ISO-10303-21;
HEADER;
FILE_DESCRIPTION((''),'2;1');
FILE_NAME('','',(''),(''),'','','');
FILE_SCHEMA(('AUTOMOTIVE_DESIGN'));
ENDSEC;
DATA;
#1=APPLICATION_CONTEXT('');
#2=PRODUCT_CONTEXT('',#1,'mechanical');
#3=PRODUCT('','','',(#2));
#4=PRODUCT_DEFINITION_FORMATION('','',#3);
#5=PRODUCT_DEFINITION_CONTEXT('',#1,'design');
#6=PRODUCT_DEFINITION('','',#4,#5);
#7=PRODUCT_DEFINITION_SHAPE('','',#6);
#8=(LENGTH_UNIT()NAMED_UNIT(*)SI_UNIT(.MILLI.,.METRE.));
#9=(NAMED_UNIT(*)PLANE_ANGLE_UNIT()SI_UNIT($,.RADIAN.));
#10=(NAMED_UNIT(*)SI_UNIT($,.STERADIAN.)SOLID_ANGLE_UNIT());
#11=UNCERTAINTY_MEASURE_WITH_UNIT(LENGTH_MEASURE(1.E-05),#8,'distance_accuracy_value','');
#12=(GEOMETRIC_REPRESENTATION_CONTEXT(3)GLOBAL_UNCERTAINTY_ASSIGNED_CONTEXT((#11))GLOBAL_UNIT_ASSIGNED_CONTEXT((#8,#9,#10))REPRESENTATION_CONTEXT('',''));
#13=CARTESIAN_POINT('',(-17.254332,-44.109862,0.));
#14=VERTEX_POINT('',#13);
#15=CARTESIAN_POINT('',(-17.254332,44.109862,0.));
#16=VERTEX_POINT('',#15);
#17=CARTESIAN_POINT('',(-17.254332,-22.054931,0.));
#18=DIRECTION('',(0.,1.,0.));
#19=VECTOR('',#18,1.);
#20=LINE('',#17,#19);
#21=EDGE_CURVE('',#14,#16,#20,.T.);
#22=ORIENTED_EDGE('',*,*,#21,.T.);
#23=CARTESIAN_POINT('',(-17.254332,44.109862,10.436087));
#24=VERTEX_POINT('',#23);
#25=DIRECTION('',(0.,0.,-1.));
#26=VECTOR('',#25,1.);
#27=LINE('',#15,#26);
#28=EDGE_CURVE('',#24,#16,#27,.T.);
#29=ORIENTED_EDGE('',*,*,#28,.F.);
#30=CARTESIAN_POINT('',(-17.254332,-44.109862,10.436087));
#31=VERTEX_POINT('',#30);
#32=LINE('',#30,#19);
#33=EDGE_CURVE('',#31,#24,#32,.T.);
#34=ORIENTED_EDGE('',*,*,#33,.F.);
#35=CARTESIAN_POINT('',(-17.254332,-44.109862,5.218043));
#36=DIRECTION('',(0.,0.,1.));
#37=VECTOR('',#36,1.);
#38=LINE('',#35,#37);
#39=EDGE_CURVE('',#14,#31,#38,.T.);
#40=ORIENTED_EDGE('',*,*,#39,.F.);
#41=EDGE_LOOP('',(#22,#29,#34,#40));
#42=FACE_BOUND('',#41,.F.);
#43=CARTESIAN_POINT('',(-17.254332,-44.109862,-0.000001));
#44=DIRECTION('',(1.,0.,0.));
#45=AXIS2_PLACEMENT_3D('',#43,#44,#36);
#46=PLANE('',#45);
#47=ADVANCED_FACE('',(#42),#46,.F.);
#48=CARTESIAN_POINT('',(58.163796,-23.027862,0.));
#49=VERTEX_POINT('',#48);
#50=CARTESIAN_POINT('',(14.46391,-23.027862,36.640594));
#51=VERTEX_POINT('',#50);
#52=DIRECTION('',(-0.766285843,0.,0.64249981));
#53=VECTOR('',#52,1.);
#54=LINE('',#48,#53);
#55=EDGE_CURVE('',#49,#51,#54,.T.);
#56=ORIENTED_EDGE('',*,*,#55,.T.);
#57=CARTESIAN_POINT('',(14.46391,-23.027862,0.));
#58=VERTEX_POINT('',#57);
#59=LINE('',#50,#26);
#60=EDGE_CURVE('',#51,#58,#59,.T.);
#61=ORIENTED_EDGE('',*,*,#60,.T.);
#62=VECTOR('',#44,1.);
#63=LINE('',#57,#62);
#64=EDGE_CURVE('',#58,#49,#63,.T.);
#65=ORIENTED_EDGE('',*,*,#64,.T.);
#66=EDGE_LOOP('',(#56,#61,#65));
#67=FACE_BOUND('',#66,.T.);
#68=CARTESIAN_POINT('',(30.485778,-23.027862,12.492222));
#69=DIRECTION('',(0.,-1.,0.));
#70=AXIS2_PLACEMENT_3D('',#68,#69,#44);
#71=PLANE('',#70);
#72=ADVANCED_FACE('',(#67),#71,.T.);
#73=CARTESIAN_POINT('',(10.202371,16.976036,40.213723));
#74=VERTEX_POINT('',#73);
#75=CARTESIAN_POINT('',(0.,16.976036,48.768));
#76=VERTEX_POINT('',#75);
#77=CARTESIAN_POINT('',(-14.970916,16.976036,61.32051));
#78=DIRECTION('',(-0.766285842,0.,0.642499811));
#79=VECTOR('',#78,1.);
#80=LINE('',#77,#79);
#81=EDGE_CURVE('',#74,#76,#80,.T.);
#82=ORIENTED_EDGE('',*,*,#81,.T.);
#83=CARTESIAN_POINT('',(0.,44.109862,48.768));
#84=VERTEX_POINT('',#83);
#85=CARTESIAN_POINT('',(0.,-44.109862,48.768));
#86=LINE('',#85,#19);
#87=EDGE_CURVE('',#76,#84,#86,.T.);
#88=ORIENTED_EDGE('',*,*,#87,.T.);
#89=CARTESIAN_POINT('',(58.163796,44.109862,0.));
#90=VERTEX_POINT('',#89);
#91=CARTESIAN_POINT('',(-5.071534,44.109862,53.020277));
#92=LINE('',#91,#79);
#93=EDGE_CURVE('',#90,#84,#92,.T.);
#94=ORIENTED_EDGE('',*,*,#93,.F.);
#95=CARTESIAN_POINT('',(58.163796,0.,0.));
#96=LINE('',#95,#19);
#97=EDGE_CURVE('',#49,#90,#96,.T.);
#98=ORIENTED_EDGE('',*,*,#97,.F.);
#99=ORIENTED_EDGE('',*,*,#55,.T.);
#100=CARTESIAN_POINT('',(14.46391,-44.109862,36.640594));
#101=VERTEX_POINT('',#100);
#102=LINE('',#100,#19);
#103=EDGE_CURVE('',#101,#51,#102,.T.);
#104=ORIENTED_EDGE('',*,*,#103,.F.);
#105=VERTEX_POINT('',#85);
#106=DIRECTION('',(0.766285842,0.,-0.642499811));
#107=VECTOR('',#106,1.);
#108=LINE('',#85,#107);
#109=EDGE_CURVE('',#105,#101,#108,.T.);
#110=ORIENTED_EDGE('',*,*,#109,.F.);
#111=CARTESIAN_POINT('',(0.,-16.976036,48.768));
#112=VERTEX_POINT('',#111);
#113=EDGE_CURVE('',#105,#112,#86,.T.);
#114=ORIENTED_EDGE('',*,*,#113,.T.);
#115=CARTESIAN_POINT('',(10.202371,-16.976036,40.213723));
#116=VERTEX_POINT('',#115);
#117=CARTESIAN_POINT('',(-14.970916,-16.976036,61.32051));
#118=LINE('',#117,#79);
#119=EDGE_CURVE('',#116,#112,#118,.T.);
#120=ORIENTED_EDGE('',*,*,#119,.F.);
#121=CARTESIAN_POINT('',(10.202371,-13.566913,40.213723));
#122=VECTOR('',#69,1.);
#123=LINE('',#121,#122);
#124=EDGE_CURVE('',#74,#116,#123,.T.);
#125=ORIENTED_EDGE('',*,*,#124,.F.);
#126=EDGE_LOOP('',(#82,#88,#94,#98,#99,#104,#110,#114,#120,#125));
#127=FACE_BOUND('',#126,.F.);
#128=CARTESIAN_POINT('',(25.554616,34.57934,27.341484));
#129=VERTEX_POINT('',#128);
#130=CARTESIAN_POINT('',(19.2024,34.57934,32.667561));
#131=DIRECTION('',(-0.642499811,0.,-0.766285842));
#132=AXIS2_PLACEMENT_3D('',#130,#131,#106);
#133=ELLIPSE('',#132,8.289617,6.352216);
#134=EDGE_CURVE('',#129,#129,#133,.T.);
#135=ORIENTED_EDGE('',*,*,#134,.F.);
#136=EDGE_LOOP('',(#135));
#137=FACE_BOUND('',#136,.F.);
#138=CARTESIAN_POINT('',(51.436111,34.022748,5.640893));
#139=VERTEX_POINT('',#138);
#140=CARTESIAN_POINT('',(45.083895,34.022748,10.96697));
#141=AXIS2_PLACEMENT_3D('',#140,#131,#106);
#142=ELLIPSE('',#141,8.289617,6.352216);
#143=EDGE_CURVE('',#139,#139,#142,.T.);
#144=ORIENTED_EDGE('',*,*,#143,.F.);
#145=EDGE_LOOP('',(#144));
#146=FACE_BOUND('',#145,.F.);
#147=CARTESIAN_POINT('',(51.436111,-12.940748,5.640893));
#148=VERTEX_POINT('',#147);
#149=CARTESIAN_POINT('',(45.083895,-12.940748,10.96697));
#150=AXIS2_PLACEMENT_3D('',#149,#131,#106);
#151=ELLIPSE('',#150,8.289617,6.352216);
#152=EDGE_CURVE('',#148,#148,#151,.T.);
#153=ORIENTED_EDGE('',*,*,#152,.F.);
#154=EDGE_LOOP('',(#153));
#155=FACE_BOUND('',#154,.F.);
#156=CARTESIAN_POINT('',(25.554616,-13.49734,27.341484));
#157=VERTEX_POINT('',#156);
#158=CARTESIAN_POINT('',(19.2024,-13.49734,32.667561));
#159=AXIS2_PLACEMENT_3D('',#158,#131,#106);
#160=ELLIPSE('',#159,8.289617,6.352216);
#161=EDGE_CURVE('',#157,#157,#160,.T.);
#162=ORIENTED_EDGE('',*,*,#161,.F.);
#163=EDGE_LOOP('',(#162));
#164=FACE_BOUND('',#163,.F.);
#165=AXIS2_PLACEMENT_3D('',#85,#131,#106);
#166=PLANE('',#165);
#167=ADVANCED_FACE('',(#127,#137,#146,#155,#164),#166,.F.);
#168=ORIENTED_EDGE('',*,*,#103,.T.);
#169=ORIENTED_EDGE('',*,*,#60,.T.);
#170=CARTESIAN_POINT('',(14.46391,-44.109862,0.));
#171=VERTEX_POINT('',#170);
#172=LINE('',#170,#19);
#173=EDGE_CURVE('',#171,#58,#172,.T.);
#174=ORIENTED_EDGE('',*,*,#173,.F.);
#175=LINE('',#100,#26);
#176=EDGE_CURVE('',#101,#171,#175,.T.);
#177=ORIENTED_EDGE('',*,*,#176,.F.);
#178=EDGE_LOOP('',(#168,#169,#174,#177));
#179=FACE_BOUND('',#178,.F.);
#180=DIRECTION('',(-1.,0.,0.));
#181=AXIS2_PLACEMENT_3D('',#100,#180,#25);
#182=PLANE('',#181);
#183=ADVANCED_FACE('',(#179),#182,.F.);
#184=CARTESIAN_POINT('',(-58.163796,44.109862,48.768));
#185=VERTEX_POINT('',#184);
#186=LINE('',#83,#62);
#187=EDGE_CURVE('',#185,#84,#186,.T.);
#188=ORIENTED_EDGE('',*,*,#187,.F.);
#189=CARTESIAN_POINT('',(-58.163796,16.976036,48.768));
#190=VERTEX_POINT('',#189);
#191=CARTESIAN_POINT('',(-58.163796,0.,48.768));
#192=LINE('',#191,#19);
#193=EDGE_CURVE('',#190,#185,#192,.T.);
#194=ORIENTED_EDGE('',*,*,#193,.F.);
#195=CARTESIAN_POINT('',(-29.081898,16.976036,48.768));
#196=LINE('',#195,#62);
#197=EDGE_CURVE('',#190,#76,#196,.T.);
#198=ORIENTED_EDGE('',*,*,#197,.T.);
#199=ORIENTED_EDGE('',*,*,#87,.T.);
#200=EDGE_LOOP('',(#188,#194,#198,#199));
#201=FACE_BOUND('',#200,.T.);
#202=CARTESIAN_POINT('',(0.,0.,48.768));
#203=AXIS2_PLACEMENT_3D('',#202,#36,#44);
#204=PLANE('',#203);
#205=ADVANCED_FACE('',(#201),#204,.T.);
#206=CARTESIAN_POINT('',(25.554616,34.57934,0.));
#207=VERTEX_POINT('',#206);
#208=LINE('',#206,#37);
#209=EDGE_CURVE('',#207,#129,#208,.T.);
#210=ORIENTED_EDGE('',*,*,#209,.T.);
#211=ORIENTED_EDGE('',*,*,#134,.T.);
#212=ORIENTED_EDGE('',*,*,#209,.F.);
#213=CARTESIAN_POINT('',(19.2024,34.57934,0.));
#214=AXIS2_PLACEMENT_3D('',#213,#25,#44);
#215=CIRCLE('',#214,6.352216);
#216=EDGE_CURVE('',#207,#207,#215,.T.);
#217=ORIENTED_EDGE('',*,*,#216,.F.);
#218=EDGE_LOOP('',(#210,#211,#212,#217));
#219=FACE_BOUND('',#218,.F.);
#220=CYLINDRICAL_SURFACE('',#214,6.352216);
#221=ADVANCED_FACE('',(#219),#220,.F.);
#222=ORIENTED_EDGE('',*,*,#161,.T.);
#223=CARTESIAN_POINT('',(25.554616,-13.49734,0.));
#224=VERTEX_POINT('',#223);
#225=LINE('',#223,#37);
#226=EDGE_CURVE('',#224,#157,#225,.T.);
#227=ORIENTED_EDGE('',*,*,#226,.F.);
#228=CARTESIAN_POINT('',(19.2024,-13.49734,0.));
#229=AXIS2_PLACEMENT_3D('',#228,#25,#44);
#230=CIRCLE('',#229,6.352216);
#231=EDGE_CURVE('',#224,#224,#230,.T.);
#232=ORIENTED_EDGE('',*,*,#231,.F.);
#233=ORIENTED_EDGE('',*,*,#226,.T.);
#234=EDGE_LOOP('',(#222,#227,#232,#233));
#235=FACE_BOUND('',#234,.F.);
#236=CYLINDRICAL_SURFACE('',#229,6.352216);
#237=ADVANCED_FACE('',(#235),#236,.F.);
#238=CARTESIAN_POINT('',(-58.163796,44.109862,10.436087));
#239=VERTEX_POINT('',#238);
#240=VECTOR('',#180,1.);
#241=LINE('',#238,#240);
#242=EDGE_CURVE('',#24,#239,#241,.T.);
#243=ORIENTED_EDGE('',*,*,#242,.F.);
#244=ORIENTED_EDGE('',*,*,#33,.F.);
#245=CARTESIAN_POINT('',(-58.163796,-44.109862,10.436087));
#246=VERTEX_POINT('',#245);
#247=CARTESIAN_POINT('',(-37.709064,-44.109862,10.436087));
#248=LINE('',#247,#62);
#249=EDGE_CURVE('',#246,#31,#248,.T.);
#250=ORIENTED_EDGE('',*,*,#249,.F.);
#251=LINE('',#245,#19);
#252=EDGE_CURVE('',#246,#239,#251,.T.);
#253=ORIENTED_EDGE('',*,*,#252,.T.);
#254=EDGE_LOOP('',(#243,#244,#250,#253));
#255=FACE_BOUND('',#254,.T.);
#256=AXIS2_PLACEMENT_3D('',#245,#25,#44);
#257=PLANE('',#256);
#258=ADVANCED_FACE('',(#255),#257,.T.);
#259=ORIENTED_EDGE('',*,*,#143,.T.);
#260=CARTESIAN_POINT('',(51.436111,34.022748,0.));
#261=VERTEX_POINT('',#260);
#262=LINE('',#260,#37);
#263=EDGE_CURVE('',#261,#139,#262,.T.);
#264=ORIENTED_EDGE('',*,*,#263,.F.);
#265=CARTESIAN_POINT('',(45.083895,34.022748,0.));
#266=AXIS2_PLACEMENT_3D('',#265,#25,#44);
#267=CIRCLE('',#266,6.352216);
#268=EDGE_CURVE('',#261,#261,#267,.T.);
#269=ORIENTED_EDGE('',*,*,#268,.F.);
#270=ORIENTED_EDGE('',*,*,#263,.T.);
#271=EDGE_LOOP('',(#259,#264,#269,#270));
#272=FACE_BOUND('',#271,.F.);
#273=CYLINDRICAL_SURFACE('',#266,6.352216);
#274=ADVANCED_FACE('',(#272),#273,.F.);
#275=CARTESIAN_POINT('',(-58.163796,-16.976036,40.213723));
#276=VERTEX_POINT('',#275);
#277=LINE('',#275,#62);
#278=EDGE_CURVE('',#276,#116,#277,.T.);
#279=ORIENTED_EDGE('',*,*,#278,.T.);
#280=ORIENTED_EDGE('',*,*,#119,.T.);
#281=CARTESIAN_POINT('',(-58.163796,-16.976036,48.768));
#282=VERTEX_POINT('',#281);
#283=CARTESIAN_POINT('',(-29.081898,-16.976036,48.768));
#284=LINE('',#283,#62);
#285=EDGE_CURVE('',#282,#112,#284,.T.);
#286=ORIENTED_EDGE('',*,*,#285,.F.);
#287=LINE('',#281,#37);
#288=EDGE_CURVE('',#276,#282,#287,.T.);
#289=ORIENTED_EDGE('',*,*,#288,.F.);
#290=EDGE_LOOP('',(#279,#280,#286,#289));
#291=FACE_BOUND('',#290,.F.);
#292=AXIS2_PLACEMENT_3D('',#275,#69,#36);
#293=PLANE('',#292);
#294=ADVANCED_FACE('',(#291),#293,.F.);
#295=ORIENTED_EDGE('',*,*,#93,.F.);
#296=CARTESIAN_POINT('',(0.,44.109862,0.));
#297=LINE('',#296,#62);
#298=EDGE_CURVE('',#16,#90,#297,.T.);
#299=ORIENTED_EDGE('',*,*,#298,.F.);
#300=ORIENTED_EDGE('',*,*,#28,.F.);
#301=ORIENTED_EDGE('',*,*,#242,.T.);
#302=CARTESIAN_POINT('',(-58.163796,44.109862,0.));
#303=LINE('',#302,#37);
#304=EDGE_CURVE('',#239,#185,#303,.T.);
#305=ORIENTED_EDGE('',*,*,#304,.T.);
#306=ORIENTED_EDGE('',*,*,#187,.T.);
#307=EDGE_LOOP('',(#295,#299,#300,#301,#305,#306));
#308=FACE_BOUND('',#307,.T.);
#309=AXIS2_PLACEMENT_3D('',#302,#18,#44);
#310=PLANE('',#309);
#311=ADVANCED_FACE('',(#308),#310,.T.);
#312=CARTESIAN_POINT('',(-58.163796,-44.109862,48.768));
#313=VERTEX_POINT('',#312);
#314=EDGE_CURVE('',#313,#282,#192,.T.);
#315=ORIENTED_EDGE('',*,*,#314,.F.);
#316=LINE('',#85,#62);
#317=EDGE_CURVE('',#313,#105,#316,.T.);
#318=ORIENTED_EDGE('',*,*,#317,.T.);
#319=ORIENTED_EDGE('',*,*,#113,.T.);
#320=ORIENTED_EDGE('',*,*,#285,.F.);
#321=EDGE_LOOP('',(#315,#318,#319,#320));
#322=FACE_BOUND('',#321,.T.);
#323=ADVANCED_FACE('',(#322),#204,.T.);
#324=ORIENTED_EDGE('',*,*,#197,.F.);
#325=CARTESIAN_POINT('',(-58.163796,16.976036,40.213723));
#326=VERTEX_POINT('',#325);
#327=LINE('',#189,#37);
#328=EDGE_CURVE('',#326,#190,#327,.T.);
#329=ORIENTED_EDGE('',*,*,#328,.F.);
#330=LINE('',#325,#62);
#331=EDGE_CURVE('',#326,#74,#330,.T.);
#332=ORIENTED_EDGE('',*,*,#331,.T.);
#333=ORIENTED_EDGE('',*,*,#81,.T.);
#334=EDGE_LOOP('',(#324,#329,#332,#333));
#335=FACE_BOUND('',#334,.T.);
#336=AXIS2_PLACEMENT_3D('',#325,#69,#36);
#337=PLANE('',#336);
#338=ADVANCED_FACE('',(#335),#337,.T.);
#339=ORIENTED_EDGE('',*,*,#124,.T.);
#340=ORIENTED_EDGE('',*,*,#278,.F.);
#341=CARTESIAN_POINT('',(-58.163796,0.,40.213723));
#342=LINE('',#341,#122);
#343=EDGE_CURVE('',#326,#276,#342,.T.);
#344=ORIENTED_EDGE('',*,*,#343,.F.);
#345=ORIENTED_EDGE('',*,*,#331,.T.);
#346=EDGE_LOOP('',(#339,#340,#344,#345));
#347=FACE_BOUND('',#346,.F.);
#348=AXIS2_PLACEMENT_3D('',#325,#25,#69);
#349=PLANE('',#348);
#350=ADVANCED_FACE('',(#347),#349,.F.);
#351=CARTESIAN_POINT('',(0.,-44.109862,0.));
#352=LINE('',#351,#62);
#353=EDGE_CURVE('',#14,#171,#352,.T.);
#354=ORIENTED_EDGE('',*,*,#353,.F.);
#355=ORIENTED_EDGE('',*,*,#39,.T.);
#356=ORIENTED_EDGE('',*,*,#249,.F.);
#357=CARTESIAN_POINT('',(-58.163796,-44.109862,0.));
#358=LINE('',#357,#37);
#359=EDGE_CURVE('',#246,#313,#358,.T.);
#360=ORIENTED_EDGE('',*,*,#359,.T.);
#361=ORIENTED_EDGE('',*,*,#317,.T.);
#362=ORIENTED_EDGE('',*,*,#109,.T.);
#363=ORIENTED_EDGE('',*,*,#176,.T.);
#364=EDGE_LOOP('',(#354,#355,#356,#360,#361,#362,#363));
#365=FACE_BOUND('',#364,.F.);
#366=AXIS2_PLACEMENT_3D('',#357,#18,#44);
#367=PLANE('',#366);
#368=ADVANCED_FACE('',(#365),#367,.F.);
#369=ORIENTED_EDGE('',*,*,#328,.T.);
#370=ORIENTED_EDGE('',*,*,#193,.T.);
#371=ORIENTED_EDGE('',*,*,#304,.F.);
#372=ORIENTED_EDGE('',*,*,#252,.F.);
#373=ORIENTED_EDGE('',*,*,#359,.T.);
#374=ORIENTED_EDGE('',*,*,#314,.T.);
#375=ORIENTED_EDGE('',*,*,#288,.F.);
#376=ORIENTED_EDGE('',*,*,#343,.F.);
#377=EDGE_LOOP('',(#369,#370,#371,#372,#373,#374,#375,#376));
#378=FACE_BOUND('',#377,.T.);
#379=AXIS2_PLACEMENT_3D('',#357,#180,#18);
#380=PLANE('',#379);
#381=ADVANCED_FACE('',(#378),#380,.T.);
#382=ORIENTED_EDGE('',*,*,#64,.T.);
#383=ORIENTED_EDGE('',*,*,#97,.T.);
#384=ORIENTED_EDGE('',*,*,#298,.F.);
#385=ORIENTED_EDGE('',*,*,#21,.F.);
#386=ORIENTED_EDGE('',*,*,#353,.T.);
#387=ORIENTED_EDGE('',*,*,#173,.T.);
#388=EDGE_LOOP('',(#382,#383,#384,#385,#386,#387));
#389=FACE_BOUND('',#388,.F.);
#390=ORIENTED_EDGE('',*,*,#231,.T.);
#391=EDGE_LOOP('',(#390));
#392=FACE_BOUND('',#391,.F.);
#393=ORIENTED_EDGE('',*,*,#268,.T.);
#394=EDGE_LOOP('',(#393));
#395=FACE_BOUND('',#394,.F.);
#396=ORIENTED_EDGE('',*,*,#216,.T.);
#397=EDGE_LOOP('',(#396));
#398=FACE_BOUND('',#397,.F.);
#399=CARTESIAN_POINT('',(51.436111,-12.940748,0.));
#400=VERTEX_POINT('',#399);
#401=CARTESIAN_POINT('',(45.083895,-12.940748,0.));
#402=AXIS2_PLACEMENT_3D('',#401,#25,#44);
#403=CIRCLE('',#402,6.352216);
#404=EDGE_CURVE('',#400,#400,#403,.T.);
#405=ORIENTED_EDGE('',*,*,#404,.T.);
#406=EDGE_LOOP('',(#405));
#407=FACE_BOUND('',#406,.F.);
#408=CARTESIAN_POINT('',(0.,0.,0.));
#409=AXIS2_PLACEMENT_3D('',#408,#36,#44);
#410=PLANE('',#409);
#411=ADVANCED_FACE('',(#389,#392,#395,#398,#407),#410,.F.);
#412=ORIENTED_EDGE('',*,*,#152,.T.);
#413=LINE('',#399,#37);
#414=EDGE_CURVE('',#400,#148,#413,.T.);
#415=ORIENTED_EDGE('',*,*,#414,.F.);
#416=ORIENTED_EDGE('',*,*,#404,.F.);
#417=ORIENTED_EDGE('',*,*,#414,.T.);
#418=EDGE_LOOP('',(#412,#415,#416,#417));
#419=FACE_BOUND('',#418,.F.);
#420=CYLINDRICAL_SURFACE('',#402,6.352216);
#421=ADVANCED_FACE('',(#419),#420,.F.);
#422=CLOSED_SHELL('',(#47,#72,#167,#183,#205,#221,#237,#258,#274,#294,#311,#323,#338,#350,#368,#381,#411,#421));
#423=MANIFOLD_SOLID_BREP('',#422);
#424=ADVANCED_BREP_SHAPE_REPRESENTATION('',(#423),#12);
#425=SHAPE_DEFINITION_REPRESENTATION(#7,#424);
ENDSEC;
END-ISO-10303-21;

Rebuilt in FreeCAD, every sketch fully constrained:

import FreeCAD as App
import Part
import Sketcher
Q = App.Units.Quantity


def add_polygon(sketch, points):
    """Adds a closed chain of lines whose ends are joined by coincident constraints."""
    first, n = sketch.GeometryCount, len(points)
    for a, b in zip(points, points[1:] + points[:1]):
        sketch.addGeometry(Part.LineSegment(App.Vector(*a, 0), App.Vector(*b, 0)), False)
    for i in range(n):
        sketch.addConstraint(Sketcher.Constraint("Coincident", first + i, 2, first + (i + 1) % n, 1))

doc = App.newDocument("Part")
body = doc.addObject("PartDesign::Body", "Body")

# Sketch on XY plane
sketch1 = body.newObject("Sketcher::SketchObject", "Sketch")
sketch1.AttachmentSupport = (doc.getObject("XY_Plane"), [""])
sketch1.MapMode = "FlatFace"
add_polygon(sketch1, [(-58, 44), (-58, -44), (58, -44), (58, 44)])  # lines 0-3
sketch1.addConstraint([
    Sketcher.Constraint("Vertical", 0),
    Sketcher.Constraint("Horizontal", 1),
    Sketcher.Constraint("Vertical", 2),
    Sketcher.Constraint("Horizontal", 3),
    Sketcher.Constraint("Symmetric", 0, 2, 2, 2, -1, 1),
    Sketcher.Constraint("DistanceX", 1, 1, 1, 2, Q("116.327592 mm")),
    Sketcher.Constraint("DistanceY", 0, 2, 0, 1, Q("88.219724 mm")),
])
pad1 = body.newObject("PartDesign::Pad", "Pad")
pad1.Profile = sketch1
pad1.Length = Q("1.92 in")

# Sketch on XZ plane
sketch2 = body.newObject("Sketcher::SketchObject", "Sketch001")
sketch2.AttachmentSupport = (doc.getObject("XZ_Plane"), [""])
sketch2.MapMode = "FlatFace"
sketch2.AttachmentOffset = App.Placement(App.Vector(0, 0, 44.109862), App.Rotation())
add_polygon(sketch2, [(58, 0), (58, 49), (0, 49)])  # lines 0-2
sketch2.addConstraint([
    Sketcher.Constraint("Vertical", 0),
    Sketcher.Constraint("Horizontal", 1),
    Sketcher.Constraint("PointOnObject", 1, 2, -2),
    Sketcher.Constraint("PointOnObject", 2, 2, -1),
    Sketcher.Constraint("DistanceY", 0, 1, 0, 2, Q("1.92 in")),
    Sketcher.Constraint("DistanceX", 1, 2, 1, 1, Q("58.163796 mm")),
])
pocket1 = body.newObject("PartDesign::Pocket", "Pocket")
pocket1.Profile = sketch2
pocket1.Length = Q("3.67 in")

# Sketch on XZ plane
sketch3 = body.newObject("Sketcher::SketchObject", "Sketch002")
sketch3.AttachmentSupport = (doc.getObject("XZ_Plane"), [""])
sketch3.MapMode = "FlatFace"
sketch3.AttachmentOffset = App.Placement(App.Vector(0, 0, 44.109862), App.Rotation())
add_polygon(sketch3, [(58, 0), (14, 37), (14, 0)])  # lines 0-2
sketch3.addConstraint([
    Sketcher.Constraint("Vertical", 1),
    Sketcher.Constraint("Horizontal", 2),
    Sketcher.Constraint("PointOnObject", 1, 2, -1),
    Sketcher.Constraint("Distance", 0, Q("57.028179 mm")),
    Sketcher.Constraint("DistanceX", 2, 1, 2, 2, Q("43.699886 mm")),
    Sketcher.Constraint("DistanceX", -1, 1, 0, 2, Q("14.46391 mm")),
])
pocket2 = body.newObject("PartDesign::Pocket", "Pocket001")
pocket2.Profile = sketch3
pocket2.Length = Q("0.83 in")

# Sketch on XZ plane
sketch4 = body.newObject("Sketcher::SketchObject", "Sketch003")
sketch4.AttachmentSupport = (doc.getObject("XZ_Plane"), [""])
sketch4.MapMode = "FlatFace"
sketch4.AttachmentOffset = App.Placement(App.Vector(0, 0, 44.109862), App.Rotation())
add_polygon(sketch4, [(-58, 10), (-58, 0), (-17, 0), (-17, 10)])  # lines 0-3
sketch4.addConstraint([
    Sketcher.Constraint("Vertical", 0),
    Sketcher.Constraint("Horizontal", 1),
    Sketcher.Constraint("Vertical", 2),
    Sketcher.Constraint("Horizontal", 3),
    Sketcher.Constraint("PointOnObject", 0, 2, -1),
    Sketcher.Constraint("DistanceX", 1, 1, 1, 2, Q("40.909464 mm")),
    Sketcher.Constraint("DistanceY", 0, 2, 0, 1, Q("10.436087 mm")),
    Sketcher.Constraint("DistanceX", 0, 2, -1, 1, Q("58.163796 mm")),
])
pocket3 = body.newObject("PartDesign::Pocket", "Pocket002")
pocket3.Profile = sketch4
pocket3.Length = Q("3.61 in")

# Sketch on YZ plane
sketch5 = body.newObject("Sketcher::SketchObject", "Sketch004")
sketch5.AttachmentSupport = (doc.getObject("YZ_Plane"), [""])
sketch5.MapMode = "FlatFace"
sketch5.AttachmentOffset = App.Placement(App.Vector(0, 0, -58.163796), App.Rotation())
add_polygon(sketch5, [(17, 57), (17, 40), (-17, 40), (-17, 57)])  # lines 0-3
sketch5.addConstraint([
    Sketcher.Constraint("Vertical", 0),
    Sketcher.Constraint("Horizontal", 1),
    Sketcher.Constraint("Vertical", 2),
    Sketcher.Constraint("Horizontal", 3),
    Sketcher.Constraint("DistanceX", 1, 2, 1, 1, Q("33.952072 mm")),
    Sketcher.Constraint("DistanceY", 0, 2, 0, 1, Q("17.108554 mm")),
    Sketcher.Constraint("DistanceX", -1, 1, 0, 2, Q("16.976036 mm")),
    Sketcher.Constraint("DistanceY", -1, 1, 0, 2, Q("40.213723 mm")),
])
pocket4 = body.newObject("PartDesign::Pocket", "Pocket003")
pocket4.Profile = sketch5
pocket4.Length = Q("3.09 in")
pocket4.Reversed = True

# Sketch on XY plane
sketch6 = body.newObject("Sketcher::SketchObject", "Sketch005")
sketch6.AttachmentSupport = (doc.getObject("XY_Plane"), [""])
sketch6.MapMode = "FlatFace"
sketch6.addGeometry([
    Part.Circle(App.Vector(45, -13, 0), App.Vector(0, 0, 1), 6),
    Part.Circle(App.Vector(19, -13, 0), App.Vector(0, 0, 1), 6),
    Part.Circle(App.Vector(45, 34, 0), App.Vector(0, 0, 1), 6),
    Part.Circle(App.Vector(19, 35, 0), App.Vector(0, 0, 1), 6),
], False)
sketch6.addConstraint([
    Sketcher.Constraint("Equal", 0, 1),
    Sketcher.Constraint("Equal", 1, 2),
    Sketcher.Constraint("Equal", 2, 3),
    Sketcher.Constraint("Vertical", 0, 3, 2, 3),
    Sketcher.Constraint("Vertical", 1, 3, 3, 3),
    Sketcher.Constraint("DistanceX", -1, 1, 1, 3, Q("0.756 in")),
    Sketcher.Constraint("Diameter", 0, Q("12.704432 mm")),
    Sketcher.Constraint("DistanceY", 1, 3, -1, 1, Q("13.49734 mm")),
    Sketcher.Constraint("DistanceY", -1, 1, 3, 3, Q("34.57934 mm")),
    Sketcher.Constraint("DistanceX", -1, 1, 0, 3, Q("45.083895 mm")),
    Sketcher.Constraint("DistanceY", 0, 3, -1, 1, Q("12.940748 mm")),
    Sketcher.Constraint("DistanceY", -1, 1, 2, 3, Q("34.022748 mm")),
])
pocket5 = body.newObject("PartDesign::Pocket", "Pocket004")
pocket5.Profile = sketch6
pocket5.Length = Q("2.32 in")
pocket5.Reversed = True

doc.recompute()
